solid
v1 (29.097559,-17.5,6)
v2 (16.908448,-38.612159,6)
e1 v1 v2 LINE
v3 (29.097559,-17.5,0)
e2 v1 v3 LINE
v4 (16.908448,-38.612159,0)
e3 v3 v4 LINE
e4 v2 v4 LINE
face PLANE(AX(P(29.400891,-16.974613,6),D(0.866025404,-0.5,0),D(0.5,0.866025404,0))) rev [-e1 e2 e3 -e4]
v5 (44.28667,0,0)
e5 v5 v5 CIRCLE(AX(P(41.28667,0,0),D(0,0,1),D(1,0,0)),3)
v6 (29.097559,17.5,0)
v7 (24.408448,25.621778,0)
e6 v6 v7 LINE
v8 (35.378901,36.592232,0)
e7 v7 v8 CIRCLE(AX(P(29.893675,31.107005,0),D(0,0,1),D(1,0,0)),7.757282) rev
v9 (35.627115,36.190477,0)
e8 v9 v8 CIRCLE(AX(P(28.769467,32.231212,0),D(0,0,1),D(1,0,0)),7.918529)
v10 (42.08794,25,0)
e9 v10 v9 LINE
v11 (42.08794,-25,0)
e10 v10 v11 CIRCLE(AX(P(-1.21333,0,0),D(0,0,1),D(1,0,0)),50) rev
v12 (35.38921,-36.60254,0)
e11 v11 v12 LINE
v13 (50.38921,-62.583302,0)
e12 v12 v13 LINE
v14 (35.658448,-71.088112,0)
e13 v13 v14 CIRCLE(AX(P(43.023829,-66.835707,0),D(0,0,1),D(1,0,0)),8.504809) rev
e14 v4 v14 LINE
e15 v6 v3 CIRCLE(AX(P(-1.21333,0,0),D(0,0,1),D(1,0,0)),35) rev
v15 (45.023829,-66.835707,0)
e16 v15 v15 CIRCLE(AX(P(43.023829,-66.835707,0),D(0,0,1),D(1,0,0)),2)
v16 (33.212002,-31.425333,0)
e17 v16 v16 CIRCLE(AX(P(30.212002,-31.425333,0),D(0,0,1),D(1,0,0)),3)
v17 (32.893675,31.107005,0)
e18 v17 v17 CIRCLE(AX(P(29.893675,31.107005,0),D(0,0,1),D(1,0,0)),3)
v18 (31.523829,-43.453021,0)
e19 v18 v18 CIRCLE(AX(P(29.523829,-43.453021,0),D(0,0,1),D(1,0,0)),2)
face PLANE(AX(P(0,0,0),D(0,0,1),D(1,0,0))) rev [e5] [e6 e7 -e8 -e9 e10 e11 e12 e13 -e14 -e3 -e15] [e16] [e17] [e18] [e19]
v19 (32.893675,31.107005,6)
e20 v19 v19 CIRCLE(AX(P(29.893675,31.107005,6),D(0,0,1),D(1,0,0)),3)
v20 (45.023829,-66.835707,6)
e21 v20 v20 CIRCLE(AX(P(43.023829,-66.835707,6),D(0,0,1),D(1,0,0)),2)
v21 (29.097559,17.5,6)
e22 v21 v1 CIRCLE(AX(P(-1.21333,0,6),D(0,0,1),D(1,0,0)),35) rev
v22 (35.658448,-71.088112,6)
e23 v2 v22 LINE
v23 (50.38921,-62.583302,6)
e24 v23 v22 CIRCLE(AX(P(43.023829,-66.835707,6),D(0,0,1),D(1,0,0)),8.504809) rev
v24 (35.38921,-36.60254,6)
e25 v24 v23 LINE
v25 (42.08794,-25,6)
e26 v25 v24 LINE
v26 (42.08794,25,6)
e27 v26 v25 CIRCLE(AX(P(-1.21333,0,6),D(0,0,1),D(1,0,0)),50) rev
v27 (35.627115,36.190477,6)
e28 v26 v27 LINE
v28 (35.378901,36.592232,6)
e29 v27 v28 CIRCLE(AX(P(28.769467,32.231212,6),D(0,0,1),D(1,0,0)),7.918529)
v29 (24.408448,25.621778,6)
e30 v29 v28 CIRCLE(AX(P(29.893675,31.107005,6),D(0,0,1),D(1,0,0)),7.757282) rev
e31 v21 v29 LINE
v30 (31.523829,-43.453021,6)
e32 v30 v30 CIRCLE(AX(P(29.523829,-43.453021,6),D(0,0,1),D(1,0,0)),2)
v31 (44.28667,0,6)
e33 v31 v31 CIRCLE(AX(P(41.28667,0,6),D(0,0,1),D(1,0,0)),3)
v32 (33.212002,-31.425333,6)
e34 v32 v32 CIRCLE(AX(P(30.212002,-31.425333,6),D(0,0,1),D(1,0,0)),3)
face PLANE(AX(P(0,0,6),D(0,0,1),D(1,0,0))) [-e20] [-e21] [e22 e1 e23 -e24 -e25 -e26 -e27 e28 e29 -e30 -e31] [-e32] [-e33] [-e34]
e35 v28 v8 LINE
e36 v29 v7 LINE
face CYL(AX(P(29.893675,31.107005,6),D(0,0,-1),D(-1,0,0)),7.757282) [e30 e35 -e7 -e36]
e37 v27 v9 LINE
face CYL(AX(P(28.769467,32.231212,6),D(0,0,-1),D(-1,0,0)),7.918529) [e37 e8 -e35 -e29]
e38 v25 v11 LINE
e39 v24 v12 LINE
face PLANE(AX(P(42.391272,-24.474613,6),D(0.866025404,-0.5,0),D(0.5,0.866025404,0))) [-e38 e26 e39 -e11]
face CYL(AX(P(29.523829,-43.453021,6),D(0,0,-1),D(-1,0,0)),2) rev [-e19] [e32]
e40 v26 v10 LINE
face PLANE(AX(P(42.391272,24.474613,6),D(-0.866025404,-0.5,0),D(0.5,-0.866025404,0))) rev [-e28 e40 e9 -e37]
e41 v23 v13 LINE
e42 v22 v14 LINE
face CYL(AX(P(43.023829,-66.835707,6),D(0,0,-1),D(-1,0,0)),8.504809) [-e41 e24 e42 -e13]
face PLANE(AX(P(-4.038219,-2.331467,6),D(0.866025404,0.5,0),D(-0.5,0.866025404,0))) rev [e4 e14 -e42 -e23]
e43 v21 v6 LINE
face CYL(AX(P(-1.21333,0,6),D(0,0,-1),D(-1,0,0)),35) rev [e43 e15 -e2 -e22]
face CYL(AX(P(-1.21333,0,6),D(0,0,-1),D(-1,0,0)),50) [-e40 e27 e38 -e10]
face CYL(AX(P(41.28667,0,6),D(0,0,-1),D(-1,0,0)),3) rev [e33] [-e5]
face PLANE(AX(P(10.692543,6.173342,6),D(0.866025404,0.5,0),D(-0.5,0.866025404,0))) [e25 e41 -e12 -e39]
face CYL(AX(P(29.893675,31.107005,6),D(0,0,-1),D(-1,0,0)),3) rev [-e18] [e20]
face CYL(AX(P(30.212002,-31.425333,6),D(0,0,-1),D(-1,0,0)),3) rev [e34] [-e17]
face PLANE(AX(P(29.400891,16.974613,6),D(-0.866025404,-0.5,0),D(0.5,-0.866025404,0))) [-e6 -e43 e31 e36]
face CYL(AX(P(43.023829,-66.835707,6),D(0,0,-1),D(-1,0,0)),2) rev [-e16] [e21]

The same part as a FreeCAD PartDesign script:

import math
import FreeCAD as App
import Part
import Sketcher
Q = App.Units.Quantity

doc = App.newDocument("Part")
body = doc.addObject("PartDesign::Body", "Body")

# Sketch on XY plane
sketch1 = doc.addObject("Sketcher::SketchObject", "Sketch")
body.addObject(sketch1)
sketch1.AttachmentSupport = (doc.XY_Plane, [""])
sketch1.MapMode = "FlatFace"
sketch1.addGeometry([
    Part.ArcOfCircle(Part.Circle(App.Vector(29.89, 31.11, 0), App.Vector(0, 0, 1), 7.76), math.radians(45), math.radians(225)),  # 0
    Part.LineSegment(App.Vector(24.41, 25.62, 0), App.Vector(29.1, 17.5, 0)),  # 1
    Part.ArcOfCircle(Part.Circle(App.Vector(-1.21, 0, 0), App.Vector(0, 0, 1), 35), math.radians(-30), math.radians(30)),  # 2
    Part.LineSegment(App.Vector(29.1, -17.5, 0), App.Vector(24.41, -25.62, 0)),  # 3
    Part.LineSegment(App.Vector(24.41, -25.62, 0), App.Vector(16.91, -38.61, 0)),  # 4
    Part.LineSegment(App.Vector(16.91, -38.61, 0), App.Vector(33.91, -68.05, 0)),  # 5
    Part.LineSegment(App.Vector(33.91, -68.05, 0), App.Vector(35.66, -71.09, 0)),  # 6
    Part.ArcOfCircle(Part.Circle(App.Vector(43.02, -66.84, 0), App.Vector(0, 0, 1), 8.5), math.radians(-150), math.radians(30)),  # 7
    Part.LineSegment(App.Vector(50.39, -62.58, 0), App.Vector(35.39, -36.6, 0)),  # 8
    Part.LineSegment(App.Vector(35.39, -36.6, 0), App.Vector(42.09, -25, 0)),  # 9
    Part.ArcOfCircle(Part.Circle(App.Vector(-1.21, 0, 0), App.Vector(0, 0, 1), 50), math.radians(-30), math.radians(30)),  # 10
    Part.LineSegment(App.Vector(42.09, 25, 0), App.Vector(35.63, 36.19, 0)),  # 11
    Part.ArcOfCircle(Part.Circle(App.Vector(28.77, 32.23, 0), App.Vector(0, 0, 1), 7.92), math.radians(30), math.radians(33.42)),  # 12
    Part.Circle(App.Vector(43.02, -66.84, 0), App.Vector(0, 0, 1), 2),  # 13
    Part.Circle(App.Vector(29.52, -43.45, 0), App.Vector(0, 0, 1), 2),  # 14
    Part.Circle(App.Vector(30.21, -31.43, 0), App.Vector(0, 0, 1), 3),  # 15
    Part.Circle(App.Vector(41.29, 0, 0), App.Vector(0, 0, 1), 3),  # 16
    Part.Circle(App.Vector(29.89, 31.11, 0), App.Vector(0, 0, 1), 3),  # 17
], False)
sketch1.addConstraint([
    Sketcher.Constraint("Coincident", 0, 2, 1, 1),
    Sketcher.Constraint("Tangent", 1, 2, 2, 2),
    Sketcher.Constraint("Tangent", 2, 1, 3, 1),
    Sketcher.Constraint("Coincident", 3, 2, 4, 1),
    Sketcher.Constraint("Coincident", 4, 2, 5, 1),
    Sketcher.Constraint("Coincident", 5, 2, 6, 1),
    Sketcher.Constraint("Tangent", 6, 2, 7, 1),
    Sketcher.Constraint("Tangent", 7, 2, 8, 1),
    Sketcher.Constraint("Coincident", 8, 2, 9, 1),
    Sketcher.Constraint("Tangent", 9, 2, 10, 1),
    Sketcher.Constraint("Tangent", 10, 2, 11, 1),
    Sketcher.Constraint("Tangent", 11, 2, 12, 1),
    Sketcher.Constraint("Coincident", 12, 2, 0, 1),
    Sketcher.Constraint("Coincident", 10, 3, 2, 3),
    Sketcher.Constraint("Coincident", 13, 3, 7, 3),
    Sketcher.Constraint("Coincident", 17, 3, 0, 3),
    Sketcher.Constraint("Equal", 13, 14),
    Sketcher.Constraint("Equal", 15, 16),
    Sketcher.Constraint("Equal", 16, 17),
    Sketcher.Constraint("Symmetric", 1, 2, 2, 1, -1),
    Sketcher.Constraint("PointOnObject", 16, 3, -1),
    Sketcher.Constraint("Parallel", 3, 4),
    Sketcher.Constraint("Parallel", 1, 5),
    Sketcher.Constraint("Parallel", 5, 6),
    Sketcher.Constraint("Parallel", 6, 8),
    Sketcher.Constraint("Parallel", 4, 9),
    Sketcher.Constraint("Parallel", 8, 11),
    Sketcher.Constraint("Vertical", 0, 2, 3, 2),
    Sketcher.Constraint("Diameter", 13, 4.0),
    Sketcher.Constraint("Diameter", 15, 6.0),
    Sketcher.Constraint("Radius", 2, 35.0),
    Sketcher.Constraint("Radius", 10, 50.0),
    Sketcher.Constraint("Angle", 1, Q("-60 deg")),
    Sketcher.Constraint("Distance", 4, 15.0),
    Sketcher.Constraint("Distance", 8, 30.0),
    Sketcher.Constraint("DistanceX", 14, 3, 7, 3, 13.5),
    Sketcher.Constraint("DistanceX", 2, 3, 16, 3, 42.5),
    Sketcher.Constraint("Radius", 0, 7.757282),
    Sketcher.Constraint("Radius", 7, 8.504809),
    Sketcher.Constraint("Radius", 12, 7.91853),
    Sketcher.Constraint("DistanceX", -1, 1, 12, 2, 35.378901),
    Sketcher.Constraint("DistanceX", 15, 3, 5, 2, 3.6938),
    Sketcher.Constraint("DistanceY", 0, 2, 11, 2, 10.568699),
    Sketcher.Constraint("Distance", 1, 9.378222),
    Sketcher.Constraint("Distance", 5, 33.994709),
    Sketcher.Constraint("DistanceY", 14, 3, -1, 1, 43.453021),
    Sketcher.Constraint("DistanceY", 14, 3, 15, 3, 12.027689),
    Sketcher.Constraint("DistanceX", 0, 3, 11, 2, 5.73344),
])
pad1 = doc.addObject("PartDesign::Pad", "Pad")
body.addObject(pad1)
pad1.Profile = sketch1
pad1.Length = 6

doc.recompute()
